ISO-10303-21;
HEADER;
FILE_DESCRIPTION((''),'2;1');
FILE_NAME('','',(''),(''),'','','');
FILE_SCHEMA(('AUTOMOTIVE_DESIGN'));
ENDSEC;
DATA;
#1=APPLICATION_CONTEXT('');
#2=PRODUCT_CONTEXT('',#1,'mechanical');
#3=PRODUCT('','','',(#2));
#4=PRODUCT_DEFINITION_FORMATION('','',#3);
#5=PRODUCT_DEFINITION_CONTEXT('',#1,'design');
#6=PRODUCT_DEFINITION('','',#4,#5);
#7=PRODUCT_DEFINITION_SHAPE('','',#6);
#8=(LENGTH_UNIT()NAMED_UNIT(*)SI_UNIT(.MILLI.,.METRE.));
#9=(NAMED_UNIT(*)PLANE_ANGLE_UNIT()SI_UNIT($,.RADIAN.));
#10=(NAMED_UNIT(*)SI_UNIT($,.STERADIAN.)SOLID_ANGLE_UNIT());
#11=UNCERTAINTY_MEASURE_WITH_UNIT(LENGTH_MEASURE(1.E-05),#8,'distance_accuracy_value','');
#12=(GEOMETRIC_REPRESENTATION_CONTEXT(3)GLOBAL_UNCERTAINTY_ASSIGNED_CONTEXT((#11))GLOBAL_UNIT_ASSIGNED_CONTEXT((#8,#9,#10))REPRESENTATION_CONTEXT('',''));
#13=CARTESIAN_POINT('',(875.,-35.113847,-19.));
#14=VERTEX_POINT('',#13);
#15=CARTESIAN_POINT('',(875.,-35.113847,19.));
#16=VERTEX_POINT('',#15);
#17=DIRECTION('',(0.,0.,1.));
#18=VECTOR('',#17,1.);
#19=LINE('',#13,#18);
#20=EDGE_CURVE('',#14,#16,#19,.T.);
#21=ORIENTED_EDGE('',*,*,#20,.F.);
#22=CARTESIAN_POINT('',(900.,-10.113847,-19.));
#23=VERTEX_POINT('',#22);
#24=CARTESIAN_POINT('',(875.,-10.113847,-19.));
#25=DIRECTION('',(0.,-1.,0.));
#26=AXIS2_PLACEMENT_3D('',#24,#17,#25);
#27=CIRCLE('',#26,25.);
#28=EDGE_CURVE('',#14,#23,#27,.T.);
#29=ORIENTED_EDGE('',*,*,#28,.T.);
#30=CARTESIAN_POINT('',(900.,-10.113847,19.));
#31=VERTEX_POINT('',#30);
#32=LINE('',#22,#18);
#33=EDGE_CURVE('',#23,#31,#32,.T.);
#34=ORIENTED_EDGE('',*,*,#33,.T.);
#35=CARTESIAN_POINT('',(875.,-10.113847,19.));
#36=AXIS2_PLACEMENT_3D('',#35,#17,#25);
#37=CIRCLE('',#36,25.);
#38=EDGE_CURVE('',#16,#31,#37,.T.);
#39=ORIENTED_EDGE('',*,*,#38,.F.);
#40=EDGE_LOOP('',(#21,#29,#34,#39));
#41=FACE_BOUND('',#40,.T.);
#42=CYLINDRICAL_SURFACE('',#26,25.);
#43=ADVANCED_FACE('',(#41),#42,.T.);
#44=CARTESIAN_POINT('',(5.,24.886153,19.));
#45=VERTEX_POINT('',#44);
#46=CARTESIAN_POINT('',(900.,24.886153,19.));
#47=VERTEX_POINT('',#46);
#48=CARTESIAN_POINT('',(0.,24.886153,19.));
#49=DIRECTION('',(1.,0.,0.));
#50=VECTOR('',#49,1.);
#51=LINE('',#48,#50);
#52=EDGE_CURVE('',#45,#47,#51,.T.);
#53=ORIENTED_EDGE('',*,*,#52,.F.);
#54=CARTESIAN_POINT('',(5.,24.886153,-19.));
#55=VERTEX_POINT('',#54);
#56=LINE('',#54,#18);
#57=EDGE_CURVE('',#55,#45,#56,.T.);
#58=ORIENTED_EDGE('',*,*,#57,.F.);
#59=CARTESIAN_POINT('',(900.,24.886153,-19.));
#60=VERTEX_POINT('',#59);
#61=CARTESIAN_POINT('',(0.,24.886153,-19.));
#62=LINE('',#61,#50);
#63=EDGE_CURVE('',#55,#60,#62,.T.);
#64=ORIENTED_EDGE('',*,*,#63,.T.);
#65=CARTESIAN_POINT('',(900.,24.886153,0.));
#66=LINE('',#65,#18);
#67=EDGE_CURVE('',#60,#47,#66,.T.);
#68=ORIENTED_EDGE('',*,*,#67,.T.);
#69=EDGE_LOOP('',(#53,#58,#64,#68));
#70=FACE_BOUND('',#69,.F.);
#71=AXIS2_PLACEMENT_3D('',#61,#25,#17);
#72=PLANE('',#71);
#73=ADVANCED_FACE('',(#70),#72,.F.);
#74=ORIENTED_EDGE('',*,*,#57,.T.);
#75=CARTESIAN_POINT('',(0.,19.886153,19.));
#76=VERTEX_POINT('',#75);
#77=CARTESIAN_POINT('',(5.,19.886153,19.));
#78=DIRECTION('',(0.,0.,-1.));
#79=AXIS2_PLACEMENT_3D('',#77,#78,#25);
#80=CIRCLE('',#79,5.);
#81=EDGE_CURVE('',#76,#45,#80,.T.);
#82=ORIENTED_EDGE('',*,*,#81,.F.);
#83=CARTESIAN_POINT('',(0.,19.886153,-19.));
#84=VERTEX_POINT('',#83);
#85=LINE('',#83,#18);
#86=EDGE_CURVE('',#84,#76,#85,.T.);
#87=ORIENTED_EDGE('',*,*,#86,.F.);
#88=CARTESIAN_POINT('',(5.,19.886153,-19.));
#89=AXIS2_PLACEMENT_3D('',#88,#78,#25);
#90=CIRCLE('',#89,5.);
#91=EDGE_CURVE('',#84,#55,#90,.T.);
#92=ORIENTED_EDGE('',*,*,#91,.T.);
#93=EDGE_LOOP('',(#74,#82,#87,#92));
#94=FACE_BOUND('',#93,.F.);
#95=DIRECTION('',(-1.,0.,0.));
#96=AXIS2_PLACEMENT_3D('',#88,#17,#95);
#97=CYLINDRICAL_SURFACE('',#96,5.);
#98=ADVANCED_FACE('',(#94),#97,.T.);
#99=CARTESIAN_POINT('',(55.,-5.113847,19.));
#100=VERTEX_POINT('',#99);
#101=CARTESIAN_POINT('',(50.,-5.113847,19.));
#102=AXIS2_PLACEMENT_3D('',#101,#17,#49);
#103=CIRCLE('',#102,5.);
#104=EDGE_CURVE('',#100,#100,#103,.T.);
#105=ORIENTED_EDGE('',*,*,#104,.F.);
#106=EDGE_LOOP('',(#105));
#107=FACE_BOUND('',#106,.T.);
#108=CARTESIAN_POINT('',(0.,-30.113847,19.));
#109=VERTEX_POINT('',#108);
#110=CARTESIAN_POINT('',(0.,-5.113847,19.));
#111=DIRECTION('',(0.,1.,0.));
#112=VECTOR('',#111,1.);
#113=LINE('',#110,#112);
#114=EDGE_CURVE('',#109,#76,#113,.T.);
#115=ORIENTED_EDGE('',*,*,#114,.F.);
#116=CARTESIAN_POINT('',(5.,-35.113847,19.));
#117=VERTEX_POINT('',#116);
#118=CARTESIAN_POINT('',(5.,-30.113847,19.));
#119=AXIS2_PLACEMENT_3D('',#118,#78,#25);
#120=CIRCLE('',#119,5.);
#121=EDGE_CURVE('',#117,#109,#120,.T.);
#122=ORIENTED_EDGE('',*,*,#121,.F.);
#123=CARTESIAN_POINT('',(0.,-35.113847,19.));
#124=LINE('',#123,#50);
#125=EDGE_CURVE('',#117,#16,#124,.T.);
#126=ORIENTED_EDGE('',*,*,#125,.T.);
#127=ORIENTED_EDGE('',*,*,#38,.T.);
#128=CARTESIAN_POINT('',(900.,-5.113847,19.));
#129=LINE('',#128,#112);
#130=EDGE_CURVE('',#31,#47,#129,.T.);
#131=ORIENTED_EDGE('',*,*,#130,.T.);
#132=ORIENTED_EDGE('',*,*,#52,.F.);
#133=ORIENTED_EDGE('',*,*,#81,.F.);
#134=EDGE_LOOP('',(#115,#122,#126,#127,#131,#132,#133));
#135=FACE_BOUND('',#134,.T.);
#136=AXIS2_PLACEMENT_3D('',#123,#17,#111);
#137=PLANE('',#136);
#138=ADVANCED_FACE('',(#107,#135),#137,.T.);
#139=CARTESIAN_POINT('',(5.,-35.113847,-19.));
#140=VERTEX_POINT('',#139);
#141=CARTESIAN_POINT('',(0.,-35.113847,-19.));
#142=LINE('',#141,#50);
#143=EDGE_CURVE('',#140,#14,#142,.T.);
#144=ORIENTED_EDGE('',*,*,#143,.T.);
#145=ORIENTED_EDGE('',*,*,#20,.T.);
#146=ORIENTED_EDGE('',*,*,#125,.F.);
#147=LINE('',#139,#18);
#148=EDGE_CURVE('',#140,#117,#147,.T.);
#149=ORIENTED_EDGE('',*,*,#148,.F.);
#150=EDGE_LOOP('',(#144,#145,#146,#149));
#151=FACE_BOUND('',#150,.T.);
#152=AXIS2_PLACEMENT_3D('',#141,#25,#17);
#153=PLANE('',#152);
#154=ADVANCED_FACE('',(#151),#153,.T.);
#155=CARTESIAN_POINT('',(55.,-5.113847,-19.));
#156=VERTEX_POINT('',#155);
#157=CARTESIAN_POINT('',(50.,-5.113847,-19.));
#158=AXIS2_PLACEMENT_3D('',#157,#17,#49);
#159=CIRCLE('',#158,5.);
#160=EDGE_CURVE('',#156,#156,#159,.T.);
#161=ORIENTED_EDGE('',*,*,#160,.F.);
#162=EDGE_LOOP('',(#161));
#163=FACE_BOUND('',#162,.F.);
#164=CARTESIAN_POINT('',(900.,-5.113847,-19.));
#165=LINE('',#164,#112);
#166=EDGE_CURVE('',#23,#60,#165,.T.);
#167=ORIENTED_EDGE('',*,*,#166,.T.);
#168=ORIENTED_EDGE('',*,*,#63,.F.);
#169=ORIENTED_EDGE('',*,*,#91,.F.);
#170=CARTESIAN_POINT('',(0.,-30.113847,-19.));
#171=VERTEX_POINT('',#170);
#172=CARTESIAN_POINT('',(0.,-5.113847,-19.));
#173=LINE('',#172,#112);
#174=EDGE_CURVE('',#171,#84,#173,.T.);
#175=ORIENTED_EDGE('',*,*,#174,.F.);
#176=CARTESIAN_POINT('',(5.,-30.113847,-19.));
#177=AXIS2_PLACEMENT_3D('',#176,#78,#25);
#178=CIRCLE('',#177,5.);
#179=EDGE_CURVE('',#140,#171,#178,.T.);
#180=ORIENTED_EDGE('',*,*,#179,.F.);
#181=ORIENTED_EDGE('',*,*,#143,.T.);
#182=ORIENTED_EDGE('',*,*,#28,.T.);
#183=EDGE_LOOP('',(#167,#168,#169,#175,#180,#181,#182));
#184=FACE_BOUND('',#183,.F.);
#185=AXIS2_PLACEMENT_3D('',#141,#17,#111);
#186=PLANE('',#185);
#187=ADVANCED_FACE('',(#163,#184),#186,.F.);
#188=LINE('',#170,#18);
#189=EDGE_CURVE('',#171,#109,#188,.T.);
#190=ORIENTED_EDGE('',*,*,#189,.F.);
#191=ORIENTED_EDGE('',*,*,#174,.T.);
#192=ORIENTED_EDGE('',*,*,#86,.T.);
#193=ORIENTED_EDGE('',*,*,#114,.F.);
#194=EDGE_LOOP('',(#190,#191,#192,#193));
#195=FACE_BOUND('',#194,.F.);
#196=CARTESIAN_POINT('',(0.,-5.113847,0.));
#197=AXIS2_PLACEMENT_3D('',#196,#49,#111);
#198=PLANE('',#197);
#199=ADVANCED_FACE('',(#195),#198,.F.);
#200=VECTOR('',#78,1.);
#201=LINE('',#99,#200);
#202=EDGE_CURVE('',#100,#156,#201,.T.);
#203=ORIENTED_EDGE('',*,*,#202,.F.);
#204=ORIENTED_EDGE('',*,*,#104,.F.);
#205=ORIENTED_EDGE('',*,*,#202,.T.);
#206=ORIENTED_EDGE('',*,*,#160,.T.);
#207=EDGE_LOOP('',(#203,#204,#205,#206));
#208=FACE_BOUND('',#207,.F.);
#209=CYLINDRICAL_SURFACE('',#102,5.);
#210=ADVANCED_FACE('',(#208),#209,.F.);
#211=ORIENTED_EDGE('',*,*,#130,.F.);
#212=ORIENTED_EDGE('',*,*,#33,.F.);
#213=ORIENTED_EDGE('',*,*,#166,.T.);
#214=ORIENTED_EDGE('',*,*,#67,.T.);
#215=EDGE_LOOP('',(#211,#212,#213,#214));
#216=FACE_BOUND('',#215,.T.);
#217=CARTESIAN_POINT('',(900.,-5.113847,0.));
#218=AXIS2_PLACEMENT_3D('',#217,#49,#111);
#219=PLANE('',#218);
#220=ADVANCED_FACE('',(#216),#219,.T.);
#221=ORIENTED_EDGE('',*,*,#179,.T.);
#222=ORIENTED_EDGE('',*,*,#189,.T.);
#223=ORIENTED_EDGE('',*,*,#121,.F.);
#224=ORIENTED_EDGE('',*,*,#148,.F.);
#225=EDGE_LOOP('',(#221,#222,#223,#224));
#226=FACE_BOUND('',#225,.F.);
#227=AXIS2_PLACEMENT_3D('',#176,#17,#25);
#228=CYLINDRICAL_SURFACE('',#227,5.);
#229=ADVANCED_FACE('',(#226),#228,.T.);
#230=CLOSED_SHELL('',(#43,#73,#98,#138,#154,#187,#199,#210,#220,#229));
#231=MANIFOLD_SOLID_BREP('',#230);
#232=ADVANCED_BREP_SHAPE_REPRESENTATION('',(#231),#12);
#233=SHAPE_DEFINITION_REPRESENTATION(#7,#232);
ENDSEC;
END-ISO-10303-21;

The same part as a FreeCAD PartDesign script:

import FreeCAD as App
import Part
import Sketcher

V = App.Vector
Q = App.Units.Quantity


def edges_at(feature, points):
    """Names of the edges that pass closest to the given points."""
    edges = feature.Shape.Edges
    near = lambda p: min(range(len(edges)), key=lambda i: edges[i].distToShape(Part.Vertex(*p))[0])
    return sorted({f"Edge{near(p) + 1}" for p in points})


def add_polygon(sketch, points):
    """Adds a closed chain of lines whose ends are joined by coincident constraints."""
    first, n = sketch.GeometryCount, len(points)
    for a, b in zip(points, points[1:] + points[:1]):
        sketch.addGeometry(Part.LineSegment(App.Vector(*a, 0), App.Vector(*b, 0)), False)
    for i in range(n):
        sketch.addConstraint(Sketcher.Constraint("Coincident", first + i, 2, first + (i + 1) % n, 1))

doc = App.newDocument("Part")
body = doc.addObject("PartDesign::Body", "Body")

sketch1 = body.newObject("Sketcher::SketchObject", "Sketch")
sketch1.AttachmentSupport = (doc.getObject("YZ_Plane"), [""])
sketch1.MapMode = "FlatFace"
add_polygon(sketch1, [(-35.113847, 19), (-35.113847, -19), (24.886153, -19), (24.886153, 19)])
sketch1.addConstraint([
    Sketcher.Constraint("Vertical", 0),
    Sketcher.Constraint("Horizontal", 1),
    Sketcher.Constraint("Vertical", 2),
    Sketcher.Constraint("Horizontal", 3),
    Sketcher.Constraint("DistanceX", 1, 1, 1, 2, Q("60 mm")),
    Sketcher.Constraint("DistanceY", 0, 2, 0, 1, Q("38 mm")),
    Sketcher.Constraint("DistanceY", 0, 2, -1, 1, Q("19 mm")),
    Sketcher.Constraint("DistanceX", 0, 2, -1, 1, Q("35.113847 mm")),
])
pad1 = body.newObject("PartDesign::Pad", "Pad")
pad1.Profile = sketch1
pad1.Length = 900
doc.recompute()

fillet = body.newObject("PartDesign::Fillet", "Fillet")
fillet.Base = (pad1, edges_at(pad1, [(900, -35.114, 0)]))
fillet.Radius = 25
doc.recompute()

fillet2 = body.newObject("PartDesign::Fillet", "Fillet001")
fillet2.Base = (fillet, edges_at(fillet, [(0, 24.886, 0), (0, -35.114, 0)]))
fillet2.Radius = 5

sketch2 = body.newObject("Sketcher::SketchObject", "Sketch001")
sketch2.AttachmentSupport = (doc.getObject("XY_Plane"), [""])
sketch2.MapMode = "FlatFace"
sketch2.AttachmentOffset = App.Placement(V(0, 0, 19), App.Rotation())
sketch2.addGeometry(Part.Circle(V(50, -5.113847, 0), V(0, 0, 1), 5), False)
sketch2.addConstraint([
    Sketcher.Constraint("Diameter", 0, Q("10 mm")),
    Sketcher.Constraint("DistanceX", -1, 1, 0, 3, Q("50 mm")),
    Sketcher.Constraint("DistanceY", 0, 3, -1, 1, Q("5.113847 mm")),
])
pocket1 = body.newObject("PartDesign::Pocket", "Pocket")
pocket1.Profile = sketch2
pocket1.Type = "ThroughAll"

doc.recompute()
